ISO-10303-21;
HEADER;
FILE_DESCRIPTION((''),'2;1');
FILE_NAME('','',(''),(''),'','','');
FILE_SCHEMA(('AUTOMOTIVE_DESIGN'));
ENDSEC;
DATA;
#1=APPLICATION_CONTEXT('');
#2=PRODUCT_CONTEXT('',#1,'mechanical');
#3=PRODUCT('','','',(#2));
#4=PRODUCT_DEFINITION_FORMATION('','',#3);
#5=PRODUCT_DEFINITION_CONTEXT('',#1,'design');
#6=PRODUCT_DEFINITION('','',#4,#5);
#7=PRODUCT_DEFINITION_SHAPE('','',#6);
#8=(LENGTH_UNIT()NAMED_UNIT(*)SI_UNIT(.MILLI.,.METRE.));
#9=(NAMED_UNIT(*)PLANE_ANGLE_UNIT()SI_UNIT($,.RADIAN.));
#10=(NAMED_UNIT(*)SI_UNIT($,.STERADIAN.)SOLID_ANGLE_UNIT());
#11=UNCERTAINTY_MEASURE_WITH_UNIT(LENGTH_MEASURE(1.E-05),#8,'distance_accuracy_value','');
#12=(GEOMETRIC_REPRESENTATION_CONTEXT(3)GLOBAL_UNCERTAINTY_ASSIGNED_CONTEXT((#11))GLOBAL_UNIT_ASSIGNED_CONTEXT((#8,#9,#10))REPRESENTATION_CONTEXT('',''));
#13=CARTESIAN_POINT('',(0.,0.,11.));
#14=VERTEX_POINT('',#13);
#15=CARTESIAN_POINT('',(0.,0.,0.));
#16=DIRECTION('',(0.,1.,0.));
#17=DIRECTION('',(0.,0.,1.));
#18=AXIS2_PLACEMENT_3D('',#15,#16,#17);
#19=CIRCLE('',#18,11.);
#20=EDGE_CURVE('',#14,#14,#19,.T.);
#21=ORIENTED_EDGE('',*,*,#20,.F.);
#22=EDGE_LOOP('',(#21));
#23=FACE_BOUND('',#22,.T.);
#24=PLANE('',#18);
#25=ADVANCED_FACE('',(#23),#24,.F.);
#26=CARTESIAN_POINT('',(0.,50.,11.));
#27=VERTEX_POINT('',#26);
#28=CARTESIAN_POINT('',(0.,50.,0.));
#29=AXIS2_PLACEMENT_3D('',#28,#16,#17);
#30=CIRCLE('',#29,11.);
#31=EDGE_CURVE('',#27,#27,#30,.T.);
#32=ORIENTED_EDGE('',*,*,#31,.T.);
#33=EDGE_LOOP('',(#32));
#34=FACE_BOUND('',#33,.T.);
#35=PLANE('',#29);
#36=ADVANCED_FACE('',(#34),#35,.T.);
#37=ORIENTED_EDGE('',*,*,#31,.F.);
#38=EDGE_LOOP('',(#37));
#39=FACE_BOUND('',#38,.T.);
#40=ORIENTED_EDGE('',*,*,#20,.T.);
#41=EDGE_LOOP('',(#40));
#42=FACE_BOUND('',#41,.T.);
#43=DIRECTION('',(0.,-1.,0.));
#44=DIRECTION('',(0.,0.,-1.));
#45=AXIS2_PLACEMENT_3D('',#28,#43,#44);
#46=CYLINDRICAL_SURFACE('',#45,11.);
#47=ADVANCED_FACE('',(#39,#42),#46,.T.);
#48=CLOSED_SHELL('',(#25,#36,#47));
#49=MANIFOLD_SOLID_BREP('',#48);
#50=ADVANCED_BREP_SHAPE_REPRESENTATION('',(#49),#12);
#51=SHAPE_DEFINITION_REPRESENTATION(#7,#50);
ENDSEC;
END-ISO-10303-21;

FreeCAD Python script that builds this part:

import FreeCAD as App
import Part
import Sketcher

V = App.Vector

doc = App.newDocument("Part")
body = doc.addObject("PartDesign::Body", "Body")

sketch1 = body.newObject("Sketcher::SketchObject", "Sketch")
sketch1.AttachmentSupport = (doc.getObject("XZ_Plane"), [""])
sketch1.MapMode = "FlatFace"
sketch1.addGeometry(Part.Circle(V(0, 0, 0), V(0, 0, 1), 11), False)
sketch1.addConstraint(Sketcher.Constraint("Coincident", 0, 3, -1, 1))
sketch1.addConstraint(Sketcher.Constraint("Diameter", 0, 22.0))
pad1 = body.newObject("PartDesign::Pad", "Pad")
pad1.Profile = sketch1
pad1.Length = 50
pad1.Reversed = True

doc.recompute()
